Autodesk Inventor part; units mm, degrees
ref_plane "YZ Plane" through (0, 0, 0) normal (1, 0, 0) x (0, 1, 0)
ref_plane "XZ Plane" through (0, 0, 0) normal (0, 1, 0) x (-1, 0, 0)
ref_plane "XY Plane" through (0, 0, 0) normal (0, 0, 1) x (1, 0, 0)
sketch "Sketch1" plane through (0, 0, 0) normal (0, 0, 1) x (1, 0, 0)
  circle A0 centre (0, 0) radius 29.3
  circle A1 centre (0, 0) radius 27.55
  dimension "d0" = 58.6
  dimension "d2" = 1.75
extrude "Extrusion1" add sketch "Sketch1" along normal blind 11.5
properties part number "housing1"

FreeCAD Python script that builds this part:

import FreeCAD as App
import Part
import Sketcher

V = App.Vector

doc = App.newDocument("Part")
body = doc.addObject("PartDesign::Body", "Body")

# Sketch on XY plane
sketch1 = doc.addObject("Sketcher::SketchObject", "Sketch")
body.addObject(sketch1)
sketch1.AttachmentSupport = (doc.XY_Plane, [""])
sketch1.MapMode = "FlatFace"
sketch1.addGeometry([
    Part.Circle(V(0, 0, 0), V(0, 0, 1), 29),
    Part.Circle(V(0, 0, 0), V(0, 0, 1), 28),
], False)
sketch1.addConstraint([
    Sketcher.Constraint("Coincident", 0, 3, -1, 1),
    Sketcher.Constraint("Coincident", 1, 3, -1, 1),
    Sketcher.Constraint("Diameter", 0, 58.6),
    Sketcher.Constraint("Diameter", 1, 55.1),
])
pad1 = doc.addObject("PartDesign::Pad", "Pad")
body.addObject(pad1)
pad1.Profile = sketch1
pad1.Length = 11.5

doc.recompute()
